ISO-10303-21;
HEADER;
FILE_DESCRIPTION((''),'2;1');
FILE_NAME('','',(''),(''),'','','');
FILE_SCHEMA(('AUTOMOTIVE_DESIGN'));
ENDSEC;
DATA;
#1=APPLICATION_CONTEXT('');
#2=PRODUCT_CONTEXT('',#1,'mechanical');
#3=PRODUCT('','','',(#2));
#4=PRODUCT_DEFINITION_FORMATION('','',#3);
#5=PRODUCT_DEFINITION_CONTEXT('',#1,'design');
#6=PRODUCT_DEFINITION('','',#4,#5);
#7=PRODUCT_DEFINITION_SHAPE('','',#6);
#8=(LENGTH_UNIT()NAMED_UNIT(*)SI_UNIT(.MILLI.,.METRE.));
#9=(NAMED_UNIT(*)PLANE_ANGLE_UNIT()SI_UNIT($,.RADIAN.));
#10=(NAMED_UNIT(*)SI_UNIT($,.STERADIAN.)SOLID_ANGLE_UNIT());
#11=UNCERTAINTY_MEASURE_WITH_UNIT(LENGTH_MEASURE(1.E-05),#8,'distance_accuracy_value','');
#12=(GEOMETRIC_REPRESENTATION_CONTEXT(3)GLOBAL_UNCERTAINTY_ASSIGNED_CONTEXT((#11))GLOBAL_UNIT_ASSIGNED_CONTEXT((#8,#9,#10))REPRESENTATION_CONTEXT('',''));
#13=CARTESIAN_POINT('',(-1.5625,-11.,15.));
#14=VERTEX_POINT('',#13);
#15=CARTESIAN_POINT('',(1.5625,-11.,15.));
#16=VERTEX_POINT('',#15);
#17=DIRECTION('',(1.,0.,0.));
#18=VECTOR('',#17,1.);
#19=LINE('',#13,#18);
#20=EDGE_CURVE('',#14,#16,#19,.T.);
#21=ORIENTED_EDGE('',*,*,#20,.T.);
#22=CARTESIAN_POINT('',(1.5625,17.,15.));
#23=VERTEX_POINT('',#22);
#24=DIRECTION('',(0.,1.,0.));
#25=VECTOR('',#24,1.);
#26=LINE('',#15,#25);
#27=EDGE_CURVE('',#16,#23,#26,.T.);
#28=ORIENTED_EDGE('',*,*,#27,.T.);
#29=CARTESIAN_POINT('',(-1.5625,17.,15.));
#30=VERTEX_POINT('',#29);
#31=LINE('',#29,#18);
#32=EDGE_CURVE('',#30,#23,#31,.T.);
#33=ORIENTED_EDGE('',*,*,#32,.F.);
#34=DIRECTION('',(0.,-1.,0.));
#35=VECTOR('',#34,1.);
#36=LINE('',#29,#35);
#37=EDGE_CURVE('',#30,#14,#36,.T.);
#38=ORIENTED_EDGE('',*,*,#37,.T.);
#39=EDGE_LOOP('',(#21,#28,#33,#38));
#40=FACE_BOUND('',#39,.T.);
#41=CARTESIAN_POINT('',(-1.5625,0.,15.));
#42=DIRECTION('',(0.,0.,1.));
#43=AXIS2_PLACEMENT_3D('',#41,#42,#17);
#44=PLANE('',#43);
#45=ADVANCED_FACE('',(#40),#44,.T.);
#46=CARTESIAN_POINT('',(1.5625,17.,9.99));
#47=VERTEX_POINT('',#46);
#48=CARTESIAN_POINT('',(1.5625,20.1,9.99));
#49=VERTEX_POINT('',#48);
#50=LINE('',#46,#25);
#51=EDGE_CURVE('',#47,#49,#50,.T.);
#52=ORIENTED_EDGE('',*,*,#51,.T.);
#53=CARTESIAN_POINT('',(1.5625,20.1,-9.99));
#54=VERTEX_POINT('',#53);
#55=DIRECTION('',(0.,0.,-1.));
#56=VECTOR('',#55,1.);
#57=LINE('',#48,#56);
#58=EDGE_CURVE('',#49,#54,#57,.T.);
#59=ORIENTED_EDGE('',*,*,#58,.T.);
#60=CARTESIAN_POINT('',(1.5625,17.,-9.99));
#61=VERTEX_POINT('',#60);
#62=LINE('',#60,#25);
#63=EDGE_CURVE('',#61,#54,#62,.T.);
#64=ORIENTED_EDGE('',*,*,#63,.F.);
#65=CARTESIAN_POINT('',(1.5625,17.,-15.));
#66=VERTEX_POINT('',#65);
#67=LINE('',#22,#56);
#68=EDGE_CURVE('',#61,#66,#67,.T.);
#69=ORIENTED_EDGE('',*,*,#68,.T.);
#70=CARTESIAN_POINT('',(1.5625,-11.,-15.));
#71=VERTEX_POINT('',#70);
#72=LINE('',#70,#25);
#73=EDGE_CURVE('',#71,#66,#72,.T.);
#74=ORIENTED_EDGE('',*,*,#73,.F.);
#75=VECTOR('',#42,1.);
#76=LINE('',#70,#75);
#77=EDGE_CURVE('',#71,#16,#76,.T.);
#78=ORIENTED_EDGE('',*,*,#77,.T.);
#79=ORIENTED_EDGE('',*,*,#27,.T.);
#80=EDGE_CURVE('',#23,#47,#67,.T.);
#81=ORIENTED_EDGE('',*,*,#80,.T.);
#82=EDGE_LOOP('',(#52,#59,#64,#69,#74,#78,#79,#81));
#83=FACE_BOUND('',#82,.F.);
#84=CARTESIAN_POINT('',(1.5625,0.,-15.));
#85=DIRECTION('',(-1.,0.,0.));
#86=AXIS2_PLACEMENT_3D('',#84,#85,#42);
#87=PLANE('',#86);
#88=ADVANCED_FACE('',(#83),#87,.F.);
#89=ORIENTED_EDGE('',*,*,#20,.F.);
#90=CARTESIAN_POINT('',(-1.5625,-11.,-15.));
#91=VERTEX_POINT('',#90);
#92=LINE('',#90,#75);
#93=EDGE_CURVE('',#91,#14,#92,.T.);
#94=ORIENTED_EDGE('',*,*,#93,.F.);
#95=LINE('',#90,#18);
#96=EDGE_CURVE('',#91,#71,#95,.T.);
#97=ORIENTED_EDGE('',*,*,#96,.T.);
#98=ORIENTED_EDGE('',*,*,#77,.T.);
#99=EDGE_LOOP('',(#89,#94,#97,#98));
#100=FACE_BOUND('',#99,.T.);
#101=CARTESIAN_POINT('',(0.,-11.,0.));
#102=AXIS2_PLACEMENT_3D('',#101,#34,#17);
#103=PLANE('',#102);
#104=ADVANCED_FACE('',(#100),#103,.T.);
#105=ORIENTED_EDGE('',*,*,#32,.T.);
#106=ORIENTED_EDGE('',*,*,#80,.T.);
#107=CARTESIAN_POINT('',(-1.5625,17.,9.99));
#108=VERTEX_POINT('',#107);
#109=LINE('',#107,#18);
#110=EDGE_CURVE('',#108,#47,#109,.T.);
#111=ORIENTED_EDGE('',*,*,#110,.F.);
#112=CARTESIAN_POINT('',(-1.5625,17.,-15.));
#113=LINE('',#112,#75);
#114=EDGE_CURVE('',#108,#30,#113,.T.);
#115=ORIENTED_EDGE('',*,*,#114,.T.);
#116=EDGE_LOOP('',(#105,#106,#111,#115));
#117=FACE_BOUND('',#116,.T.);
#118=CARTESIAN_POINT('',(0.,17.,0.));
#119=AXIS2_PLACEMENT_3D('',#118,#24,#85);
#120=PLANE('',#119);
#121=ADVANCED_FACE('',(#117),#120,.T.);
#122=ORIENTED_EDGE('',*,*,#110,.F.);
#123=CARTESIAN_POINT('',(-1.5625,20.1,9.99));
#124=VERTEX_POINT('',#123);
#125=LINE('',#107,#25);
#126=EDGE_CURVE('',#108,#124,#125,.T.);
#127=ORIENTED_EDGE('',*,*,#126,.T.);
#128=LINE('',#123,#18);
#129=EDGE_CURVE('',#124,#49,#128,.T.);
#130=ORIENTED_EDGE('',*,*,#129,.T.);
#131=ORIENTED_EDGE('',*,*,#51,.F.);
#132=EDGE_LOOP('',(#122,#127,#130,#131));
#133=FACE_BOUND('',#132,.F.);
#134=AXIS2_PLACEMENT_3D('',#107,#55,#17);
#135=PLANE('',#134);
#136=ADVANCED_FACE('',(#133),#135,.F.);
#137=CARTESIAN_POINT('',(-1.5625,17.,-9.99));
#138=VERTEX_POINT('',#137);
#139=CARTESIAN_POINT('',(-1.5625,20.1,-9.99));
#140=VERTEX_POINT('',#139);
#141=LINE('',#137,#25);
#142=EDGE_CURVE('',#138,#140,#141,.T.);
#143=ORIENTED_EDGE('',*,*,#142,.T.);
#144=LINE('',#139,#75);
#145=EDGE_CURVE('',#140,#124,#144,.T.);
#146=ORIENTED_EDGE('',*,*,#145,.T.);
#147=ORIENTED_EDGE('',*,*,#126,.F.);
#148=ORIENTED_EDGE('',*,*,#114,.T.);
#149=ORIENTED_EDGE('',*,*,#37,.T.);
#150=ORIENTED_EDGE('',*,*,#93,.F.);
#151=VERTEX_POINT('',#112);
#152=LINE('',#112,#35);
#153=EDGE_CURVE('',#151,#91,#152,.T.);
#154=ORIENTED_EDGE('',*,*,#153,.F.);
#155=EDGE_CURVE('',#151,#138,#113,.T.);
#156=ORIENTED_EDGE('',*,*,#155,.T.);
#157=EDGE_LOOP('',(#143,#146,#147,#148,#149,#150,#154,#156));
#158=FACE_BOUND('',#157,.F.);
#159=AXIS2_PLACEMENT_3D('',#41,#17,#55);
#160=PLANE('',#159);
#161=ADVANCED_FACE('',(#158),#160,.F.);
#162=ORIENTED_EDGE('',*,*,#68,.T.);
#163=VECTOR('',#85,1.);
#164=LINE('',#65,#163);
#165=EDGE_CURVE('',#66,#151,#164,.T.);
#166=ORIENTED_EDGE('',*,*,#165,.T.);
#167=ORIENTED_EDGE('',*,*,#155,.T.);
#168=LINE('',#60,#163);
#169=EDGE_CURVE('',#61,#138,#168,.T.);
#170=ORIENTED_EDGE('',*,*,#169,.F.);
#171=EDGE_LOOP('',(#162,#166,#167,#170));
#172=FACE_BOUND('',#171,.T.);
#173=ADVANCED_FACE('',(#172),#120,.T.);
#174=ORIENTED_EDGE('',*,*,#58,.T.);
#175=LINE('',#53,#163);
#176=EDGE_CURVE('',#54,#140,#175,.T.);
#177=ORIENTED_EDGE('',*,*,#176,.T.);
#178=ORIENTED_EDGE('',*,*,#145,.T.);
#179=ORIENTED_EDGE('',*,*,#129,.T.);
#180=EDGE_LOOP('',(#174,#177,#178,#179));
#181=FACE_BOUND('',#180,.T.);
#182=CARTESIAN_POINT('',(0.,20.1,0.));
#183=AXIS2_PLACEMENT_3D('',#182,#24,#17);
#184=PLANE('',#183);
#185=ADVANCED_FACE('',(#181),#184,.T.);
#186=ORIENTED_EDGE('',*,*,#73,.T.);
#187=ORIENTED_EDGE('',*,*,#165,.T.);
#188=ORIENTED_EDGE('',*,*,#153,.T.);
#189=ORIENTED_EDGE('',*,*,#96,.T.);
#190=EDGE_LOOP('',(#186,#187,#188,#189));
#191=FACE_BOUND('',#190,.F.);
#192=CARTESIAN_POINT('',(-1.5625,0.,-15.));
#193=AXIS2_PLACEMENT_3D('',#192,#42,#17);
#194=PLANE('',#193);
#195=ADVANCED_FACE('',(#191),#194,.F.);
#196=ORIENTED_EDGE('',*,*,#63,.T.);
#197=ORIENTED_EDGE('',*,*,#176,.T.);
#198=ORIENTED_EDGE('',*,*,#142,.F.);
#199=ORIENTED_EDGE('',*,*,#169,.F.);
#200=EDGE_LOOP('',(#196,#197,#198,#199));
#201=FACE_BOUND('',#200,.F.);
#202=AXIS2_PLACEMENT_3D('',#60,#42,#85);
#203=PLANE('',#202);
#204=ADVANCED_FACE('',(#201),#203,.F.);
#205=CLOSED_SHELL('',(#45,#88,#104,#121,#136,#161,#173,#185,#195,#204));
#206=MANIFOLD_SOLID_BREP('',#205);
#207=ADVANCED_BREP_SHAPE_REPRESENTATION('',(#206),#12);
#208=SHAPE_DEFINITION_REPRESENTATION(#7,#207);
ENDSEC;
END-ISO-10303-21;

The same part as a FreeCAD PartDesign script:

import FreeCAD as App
import Part
import Sketcher
from FreeCAD import Vector
Q = App.Units.Quantity

doc = App.newDocument("Part")
body = doc.addObject("PartDesign::Body", "Body")

# Sketch on XZ plane
sketch1 = body.newObject("Sketcher::SketchObject", "Sketch")
sketch1.AttachmentSupport = (doc.getObject("XZ_Plane"), [""])
sketch1.MapMode = "FlatFace"
sketch1.addGeometry(Part.LineSegment(Vector(-1.5625, -15, 0), Vector(-1.5625, 15, 0)), False)
sketch1.addGeometry(Part.LineSegment(Vector(-1.5625, 15, 0), Vector(1.5625, 15, 0)), False)
sketch1.addGeometry(Part.LineSegment(Vector(1.5625, 15, 0), Vector(1.5625, -15, 0)), False)
sketch1.addGeometry(Part.LineSegment(Vector(1.5625, -15, 0), Vector(-1.5625, -15, 0)), False)
sketch1.addConstraint(Sketcher.Constraint("Coincident", 0, 2, 1, 1))
sketch1.addConstraint(Sketcher.Constraint("Coincident", 1, 2, 2, 1))
sketch1.addConstraint(Sketcher.Constraint("Coincident", 2, 2, 3, 1))
sketch1.addConstraint(Sketcher.Constraint("Coincident", 3, 2, 0, 1))
sketch1.addConstraint(Sketcher.Constraint("Vertical", 0))
sketch1.addConstraint(Sketcher.Constraint("Horizontal", 1))
sketch1.addConstraint(Sketcher.Constraint("Vertical", 2))
sketch1.addConstraint(Sketcher.Constraint("Horizontal", 3))
sketch1.addConstraint(Sketcher.Constraint("Symmetric", 0, 2, 2, 2, -1, 1))
sketch1.addConstraint(Sketcher.Constraint("DistanceY", 0, 1, 0, 2, Q("30 mm")))
sketch1.addConstraint(Sketcher.Constraint("DistanceX", 1, 1, 1, 2, Q("3.125 mm")))
pad1 = body.newObject("PartDesign::Pad", "Pad")
pad1.Profile = sketch1
pad1.Length = 17
pad1.Reversed = True

# Sketch on XZ plane
sketch2 = body.newObject("Sketcher::SketchObject", "Sketch001")
sketch2.AttachmentSupport = (doc.getObject("XZ_Plane"), [""])
sketch2.MapMode = "FlatFace"
sketch2.AttachmentOffset = App.Placement(Vector(0, 0, -17), App.Rotation())
sketch2.addGeometry(Part.LineSegment(Vector(-1.5625, -9.99, 0), Vector(-1.5625, 9.99, 0)), False)
sketch2.addGeometry(Part.LineSegment(Vector(-1.5625, 9.99, 0), Vector(1.5625, 9.99, 0)), False)
sketch2.addGeometry(Part.LineSegment(Vector(1.5625, 9.99, 0), Vector(1.5625, -9.99, 0)), False)
sketch2.addGeometry(Part.LineSegment(Vector(1.5625, -9.99, 0), Vector(-1.5625, -9.99, 0)), False)
sketch2.addConstraint(Sketcher.Constraint("Coincident", 0, 2, 1, 1))
sketch2.addConstraint(Sketcher.Constraint("Coincident", 1, 2, 2, 1))
sketch2.addConstraint(Sketcher.Constraint("Coincident", 2, 2, 3, 1))
sketch2.addConstraint(Sketcher.Constraint("Coincident", 3, 2, 0, 1))
sketch2.addConstraint(Sketcher.Constraint("Vertical", 0))
sketch2.addConstraint(Sketcher.Constraint("Horizontal", 1))
sketch2.addConstraint(Sketcher.Constraint("Vertical", 2))
sketch2.addConstraint(Sketcher.Constraint("Horizontal", 3))
sketch2.addConstraint(Sketcher.Constraint("Symmetric", 0, 2, 2, 2, -1, 1))
sketch2.addConstraint(Sketcher.Constraint("DistanceY", 0, 1, 0, 2, Q("19.98 mm")))
sketch2.addConstraint(Sketcher.Constraint("DistanceX", 1, 1, 1, 2, Q("3.125 mm")))
pad2 = body.newObject("PartDesign::Pad", "Pad001")
pad2.Profile = sketch2
pad2.Length = 3.1
pad2.Reversed = True

# Sketch on XZ plane
sketch3 = body.newObject("Sketcher::SketchObject", "Sketch002")
sketch3.AttachmentSupport = (doc.getObject("XZ_Plane"), [""])
sketch3.MapMode = "FlatFace"
sketch3.addGeometry(Part.LineSegment(Vector(1.5625, 15, 0), Vector(-1.5625, 15, 0)), False)
sketch3.addGeometry(Part.LineSegment(Vector(-1.5625, 15, 0), Vector(-1.5625, -15, 0)), False)
sketch3.addGeometry(Part.LineSegment(Vector(-1.5625, -15, 0), Vector(1.5625, -15, 0)), False)
sketch3.addGeometry(Part.LineSegment(Vector(1.5625, -15, 0), Vector(1.5625, 15, 0)), False)
sketch3.addConstraint(Sketcher.Constraint("Coincident", 0, 2, 1, 1))
sketch3.addConstraint(Sketcher.Constraint("Coincident", 1, 2, 2, 1))
sketch3.addConstraint(Sketcher.Constraint("Coincident", 2, 2, 3, 1))
sketch3.addConstraint(Sketcher.Constraint("Coincident", 3, 2, 0, 1))
sketch3.addConstraint(Sketcher.Constraint("Horizontal", 0))
sketch3.addConstraint(Sketcher.Constraint("Vertical", 1))
sketch3.addConstraint(Sketcher.Constraint("Horizontal", 2))
sketch3.addConstraint(Sketcher.Constraint("Vertical", 3))
sketch3.addConstraint(Sketcher.Constraint("Symmetric", 0, 2, 2, 2, -1, 1))
sketch3.addConstraint(Sketcher.Constraint("DistanceY", 1, 2, 1, 1, Q("30 mm")))
sketch3.addConstraint(Sketcher.Constraint("DistanceX", 0, 2, 0, 1, Q("3.125 mm")))
pad3 = body.newObject("PartDesign::Pad", "Pad002")
pad3.Profile = sketch3
pad3.Length = 11

doc.recompute()
